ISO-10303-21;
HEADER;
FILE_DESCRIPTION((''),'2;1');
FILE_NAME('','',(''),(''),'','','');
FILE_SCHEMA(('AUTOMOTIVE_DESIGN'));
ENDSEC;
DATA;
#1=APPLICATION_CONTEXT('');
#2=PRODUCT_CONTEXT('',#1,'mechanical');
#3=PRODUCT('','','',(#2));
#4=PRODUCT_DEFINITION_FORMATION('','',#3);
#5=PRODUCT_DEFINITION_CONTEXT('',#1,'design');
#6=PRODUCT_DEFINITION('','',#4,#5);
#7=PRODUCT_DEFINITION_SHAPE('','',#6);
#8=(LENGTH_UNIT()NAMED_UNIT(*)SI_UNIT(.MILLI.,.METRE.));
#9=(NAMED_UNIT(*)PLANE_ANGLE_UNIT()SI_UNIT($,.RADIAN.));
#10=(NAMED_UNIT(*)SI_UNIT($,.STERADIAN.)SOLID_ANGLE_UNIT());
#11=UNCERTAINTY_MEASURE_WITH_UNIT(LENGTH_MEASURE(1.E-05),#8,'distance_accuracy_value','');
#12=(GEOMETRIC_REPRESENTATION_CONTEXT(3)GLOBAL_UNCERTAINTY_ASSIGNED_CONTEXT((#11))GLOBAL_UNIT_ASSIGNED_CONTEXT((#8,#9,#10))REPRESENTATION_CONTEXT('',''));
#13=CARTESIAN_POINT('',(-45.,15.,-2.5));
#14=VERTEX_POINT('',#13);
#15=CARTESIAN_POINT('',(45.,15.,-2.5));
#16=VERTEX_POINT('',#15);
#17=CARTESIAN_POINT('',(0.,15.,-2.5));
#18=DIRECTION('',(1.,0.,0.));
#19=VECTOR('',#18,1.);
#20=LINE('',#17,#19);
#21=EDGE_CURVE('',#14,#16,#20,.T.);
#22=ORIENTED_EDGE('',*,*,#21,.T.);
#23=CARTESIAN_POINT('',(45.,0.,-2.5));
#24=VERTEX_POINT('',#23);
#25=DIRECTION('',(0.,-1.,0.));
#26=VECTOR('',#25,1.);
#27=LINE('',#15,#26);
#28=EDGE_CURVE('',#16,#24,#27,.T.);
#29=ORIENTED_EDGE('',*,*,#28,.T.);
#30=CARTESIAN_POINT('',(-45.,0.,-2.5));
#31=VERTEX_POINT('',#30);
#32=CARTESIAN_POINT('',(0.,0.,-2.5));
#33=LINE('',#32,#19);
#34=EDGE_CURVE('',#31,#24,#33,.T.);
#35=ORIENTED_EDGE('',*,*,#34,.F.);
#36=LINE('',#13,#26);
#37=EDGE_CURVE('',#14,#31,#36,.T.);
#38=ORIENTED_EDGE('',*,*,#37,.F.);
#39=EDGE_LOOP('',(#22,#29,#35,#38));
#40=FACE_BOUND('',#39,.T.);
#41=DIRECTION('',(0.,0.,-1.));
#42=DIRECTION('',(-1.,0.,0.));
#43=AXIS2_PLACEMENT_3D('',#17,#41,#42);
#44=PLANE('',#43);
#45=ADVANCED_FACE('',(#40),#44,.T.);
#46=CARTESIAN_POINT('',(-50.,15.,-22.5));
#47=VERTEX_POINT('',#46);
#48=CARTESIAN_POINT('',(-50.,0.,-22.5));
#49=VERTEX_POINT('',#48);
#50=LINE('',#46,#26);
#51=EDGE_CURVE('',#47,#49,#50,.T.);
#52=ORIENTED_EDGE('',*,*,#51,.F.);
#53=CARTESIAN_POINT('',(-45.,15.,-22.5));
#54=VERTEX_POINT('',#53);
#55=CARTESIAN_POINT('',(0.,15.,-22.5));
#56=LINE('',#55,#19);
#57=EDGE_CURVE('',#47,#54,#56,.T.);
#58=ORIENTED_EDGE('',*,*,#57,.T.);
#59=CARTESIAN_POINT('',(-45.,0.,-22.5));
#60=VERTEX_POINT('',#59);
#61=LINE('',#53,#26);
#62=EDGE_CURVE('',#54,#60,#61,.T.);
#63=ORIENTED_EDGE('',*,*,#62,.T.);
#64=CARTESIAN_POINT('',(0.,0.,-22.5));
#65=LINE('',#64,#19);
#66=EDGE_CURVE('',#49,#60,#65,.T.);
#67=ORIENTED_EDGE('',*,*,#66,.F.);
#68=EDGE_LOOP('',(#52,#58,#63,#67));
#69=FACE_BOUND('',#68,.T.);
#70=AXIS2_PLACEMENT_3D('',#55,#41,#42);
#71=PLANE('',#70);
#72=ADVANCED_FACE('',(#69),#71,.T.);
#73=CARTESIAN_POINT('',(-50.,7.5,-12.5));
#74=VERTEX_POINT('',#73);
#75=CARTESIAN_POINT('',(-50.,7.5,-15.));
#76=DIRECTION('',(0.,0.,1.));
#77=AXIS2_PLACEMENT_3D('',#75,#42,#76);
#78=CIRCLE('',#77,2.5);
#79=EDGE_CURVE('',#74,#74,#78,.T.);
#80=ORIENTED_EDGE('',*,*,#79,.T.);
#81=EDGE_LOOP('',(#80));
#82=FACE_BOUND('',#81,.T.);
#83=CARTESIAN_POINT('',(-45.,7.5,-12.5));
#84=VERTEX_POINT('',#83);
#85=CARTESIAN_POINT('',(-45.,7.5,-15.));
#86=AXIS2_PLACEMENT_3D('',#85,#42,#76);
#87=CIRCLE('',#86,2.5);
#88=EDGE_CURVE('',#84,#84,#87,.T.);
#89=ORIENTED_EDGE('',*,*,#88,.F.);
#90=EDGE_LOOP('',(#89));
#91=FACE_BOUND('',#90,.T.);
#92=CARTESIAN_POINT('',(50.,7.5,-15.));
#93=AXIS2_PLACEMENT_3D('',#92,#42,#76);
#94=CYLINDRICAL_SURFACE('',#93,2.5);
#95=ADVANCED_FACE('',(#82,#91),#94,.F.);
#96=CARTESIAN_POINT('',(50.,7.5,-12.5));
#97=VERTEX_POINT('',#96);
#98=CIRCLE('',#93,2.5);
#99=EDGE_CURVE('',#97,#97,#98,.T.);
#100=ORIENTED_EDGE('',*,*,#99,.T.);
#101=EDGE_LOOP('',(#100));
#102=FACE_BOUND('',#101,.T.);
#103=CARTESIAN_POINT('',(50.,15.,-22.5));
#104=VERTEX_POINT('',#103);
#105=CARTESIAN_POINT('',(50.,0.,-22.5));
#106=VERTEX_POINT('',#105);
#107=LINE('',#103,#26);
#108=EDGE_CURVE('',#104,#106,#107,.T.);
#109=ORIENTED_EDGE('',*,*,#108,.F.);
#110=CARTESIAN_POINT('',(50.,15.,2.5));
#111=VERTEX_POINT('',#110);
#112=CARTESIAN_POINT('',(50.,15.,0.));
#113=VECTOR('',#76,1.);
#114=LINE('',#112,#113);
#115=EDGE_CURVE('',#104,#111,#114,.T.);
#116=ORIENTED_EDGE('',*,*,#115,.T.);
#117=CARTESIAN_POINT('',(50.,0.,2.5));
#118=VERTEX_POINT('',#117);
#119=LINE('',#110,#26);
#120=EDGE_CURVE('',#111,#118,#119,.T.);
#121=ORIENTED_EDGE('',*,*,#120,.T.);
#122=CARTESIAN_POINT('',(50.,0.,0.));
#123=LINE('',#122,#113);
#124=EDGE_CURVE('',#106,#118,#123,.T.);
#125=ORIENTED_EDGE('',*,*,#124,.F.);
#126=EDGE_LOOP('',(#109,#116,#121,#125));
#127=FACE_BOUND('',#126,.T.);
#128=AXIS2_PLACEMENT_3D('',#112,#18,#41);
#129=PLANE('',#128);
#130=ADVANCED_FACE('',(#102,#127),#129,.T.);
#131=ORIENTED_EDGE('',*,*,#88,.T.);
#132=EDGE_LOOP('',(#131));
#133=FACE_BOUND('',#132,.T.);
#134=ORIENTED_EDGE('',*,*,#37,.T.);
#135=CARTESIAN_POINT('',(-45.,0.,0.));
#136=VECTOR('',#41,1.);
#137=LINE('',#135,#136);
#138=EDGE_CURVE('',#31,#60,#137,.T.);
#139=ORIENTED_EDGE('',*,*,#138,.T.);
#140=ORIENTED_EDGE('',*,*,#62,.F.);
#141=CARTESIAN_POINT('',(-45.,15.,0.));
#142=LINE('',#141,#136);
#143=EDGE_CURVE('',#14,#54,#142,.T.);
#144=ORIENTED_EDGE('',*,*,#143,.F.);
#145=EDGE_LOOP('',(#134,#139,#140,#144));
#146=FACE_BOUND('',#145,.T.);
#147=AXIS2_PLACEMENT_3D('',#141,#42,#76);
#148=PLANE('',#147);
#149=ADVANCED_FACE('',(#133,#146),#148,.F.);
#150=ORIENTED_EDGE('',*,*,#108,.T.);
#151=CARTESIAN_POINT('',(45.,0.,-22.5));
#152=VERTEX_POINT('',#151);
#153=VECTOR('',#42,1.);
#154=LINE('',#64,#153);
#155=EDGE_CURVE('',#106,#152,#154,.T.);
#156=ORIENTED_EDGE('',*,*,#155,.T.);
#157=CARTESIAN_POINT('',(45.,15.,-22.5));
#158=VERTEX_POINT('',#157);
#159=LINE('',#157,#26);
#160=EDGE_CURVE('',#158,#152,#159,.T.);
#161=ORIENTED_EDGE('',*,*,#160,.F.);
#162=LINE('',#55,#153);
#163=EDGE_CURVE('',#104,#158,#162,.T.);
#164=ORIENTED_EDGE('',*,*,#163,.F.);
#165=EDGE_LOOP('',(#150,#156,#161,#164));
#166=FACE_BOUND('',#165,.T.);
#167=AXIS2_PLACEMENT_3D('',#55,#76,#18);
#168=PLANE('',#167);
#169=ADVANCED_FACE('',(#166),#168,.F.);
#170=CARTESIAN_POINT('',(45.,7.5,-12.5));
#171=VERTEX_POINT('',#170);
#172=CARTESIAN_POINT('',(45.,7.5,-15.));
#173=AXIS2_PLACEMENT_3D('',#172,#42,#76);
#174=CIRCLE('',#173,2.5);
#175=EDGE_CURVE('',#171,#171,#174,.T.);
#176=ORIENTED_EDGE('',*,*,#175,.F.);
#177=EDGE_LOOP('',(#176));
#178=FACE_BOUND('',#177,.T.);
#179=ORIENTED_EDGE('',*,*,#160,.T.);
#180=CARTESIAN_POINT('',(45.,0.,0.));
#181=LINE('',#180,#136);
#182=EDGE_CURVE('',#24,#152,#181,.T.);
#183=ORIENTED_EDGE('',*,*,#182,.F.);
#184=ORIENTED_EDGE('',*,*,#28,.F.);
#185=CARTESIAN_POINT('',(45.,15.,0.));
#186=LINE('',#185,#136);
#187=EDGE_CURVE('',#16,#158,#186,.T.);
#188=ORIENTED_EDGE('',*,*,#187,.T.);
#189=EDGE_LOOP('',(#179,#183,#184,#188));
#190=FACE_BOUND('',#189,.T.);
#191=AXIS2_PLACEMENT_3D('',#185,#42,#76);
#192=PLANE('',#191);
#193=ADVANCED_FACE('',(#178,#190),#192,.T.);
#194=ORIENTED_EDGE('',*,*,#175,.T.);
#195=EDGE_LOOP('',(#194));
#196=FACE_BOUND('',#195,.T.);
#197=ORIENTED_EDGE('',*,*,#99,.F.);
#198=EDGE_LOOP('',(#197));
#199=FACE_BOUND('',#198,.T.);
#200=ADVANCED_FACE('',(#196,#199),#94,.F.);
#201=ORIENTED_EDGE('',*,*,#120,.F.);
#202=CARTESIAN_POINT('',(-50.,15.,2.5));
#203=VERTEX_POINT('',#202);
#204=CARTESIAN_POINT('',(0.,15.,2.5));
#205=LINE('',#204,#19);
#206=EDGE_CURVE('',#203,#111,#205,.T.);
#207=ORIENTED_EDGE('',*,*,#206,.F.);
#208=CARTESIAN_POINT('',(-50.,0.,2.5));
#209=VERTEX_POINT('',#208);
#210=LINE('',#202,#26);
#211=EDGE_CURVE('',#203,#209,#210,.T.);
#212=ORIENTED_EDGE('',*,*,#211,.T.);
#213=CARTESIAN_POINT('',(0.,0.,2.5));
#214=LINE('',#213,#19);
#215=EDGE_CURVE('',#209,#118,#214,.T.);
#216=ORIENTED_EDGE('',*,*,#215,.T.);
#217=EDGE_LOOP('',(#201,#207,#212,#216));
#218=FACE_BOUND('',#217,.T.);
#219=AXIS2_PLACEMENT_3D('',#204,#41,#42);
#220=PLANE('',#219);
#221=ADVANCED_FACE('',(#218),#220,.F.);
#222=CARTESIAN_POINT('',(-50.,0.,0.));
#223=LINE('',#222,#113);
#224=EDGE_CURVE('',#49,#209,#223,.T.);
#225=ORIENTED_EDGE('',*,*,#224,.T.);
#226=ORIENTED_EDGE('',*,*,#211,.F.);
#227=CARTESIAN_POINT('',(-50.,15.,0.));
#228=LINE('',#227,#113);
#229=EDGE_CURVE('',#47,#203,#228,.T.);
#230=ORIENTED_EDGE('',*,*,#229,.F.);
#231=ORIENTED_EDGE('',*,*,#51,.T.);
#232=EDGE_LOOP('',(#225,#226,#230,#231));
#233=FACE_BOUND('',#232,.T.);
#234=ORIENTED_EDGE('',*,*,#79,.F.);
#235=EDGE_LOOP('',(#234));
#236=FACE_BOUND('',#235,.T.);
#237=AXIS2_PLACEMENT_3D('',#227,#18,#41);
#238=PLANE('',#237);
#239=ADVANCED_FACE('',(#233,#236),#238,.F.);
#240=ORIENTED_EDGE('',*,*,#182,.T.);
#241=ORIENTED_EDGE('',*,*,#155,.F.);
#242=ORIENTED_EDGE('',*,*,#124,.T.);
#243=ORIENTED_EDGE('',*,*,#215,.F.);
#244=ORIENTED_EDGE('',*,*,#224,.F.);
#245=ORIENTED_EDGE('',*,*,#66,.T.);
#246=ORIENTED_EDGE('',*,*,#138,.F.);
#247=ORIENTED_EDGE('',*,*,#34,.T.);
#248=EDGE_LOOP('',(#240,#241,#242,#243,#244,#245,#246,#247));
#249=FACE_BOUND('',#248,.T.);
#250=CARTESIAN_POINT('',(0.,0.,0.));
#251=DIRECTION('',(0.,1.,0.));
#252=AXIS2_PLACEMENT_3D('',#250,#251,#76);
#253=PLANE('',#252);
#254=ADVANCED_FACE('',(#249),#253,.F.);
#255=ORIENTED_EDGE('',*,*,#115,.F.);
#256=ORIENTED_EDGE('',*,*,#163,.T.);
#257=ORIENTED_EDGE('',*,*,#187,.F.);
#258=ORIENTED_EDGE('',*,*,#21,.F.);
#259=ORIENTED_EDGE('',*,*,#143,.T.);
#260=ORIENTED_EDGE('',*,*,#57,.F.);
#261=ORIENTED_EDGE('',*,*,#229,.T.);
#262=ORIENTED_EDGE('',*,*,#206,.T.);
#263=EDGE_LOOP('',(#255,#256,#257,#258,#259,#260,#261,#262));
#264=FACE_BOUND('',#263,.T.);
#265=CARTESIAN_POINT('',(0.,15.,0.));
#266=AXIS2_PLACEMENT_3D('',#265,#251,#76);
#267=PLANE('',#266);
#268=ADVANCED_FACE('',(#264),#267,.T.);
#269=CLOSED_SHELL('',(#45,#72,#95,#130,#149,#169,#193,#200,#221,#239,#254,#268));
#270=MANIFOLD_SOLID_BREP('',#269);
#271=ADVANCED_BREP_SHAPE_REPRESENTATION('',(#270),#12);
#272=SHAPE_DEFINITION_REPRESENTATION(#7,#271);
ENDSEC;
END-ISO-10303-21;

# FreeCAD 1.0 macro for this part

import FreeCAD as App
import Part
import Sketcher

V = App.Vector

doc = App.newDocument("Part")
body = doc.addObject("PartDesign::Body", "Body")

# Sketch on XZ plane
sketch1 = body.newObject("Sketcher::SketchObject", "Sketch")
sketch1.AttachmentSupport = (doc.getObject("XZ_Plane"), [""])
sketch1.MapMode = "FlatFace"
sketch1.addGeometry([
    Part.LineSegment(V(-50, 2, 0), V(50, 2, 0)),  # 0
    Part.LineSegment(V(50, 2, 0), V(50, -22, 0)),  # 1
    Part.LineSegment(V(50, -22, 0), V(45, -22, 0)),  # 2
    Part.LineSegment(V(45, -22, 0), V(45, -2, 0)),  # 3
    Part.LineSegment(V(45, -2, 0), V(-45, -2, 0)),  # 4
    Part.LineSegment(V(-45, -2, 0), V(-45, -22, 0)),  # 5
    Part.LineSegment(V(-45, -22, 0), V(-50, -22, 0)),  # 6
    Part.LineSegment(V(-50, -22, 0), V(-50, 2, 0)),  # 7
], False)
sketch1.addConstraint([
    Sketcher.Constraint("Coincident", 0, 2, 1, 1),
    Sketcher.Constraint("Coincident", 1, 2, 2, 1),
    Sketcher.Constraint("Coincident", 2, 2, 3, 1),
    Sketcher.Constraint("Coincident", 3, 2, 4, 1),
    Sketcher.Constraint("Coincident", 4, 2, 5, 1),
    Sketcher.Constraint("Coincident", 5, 2, 6, 1),
    Sketcher.Constraint("Coincident", 6, 2, 7, 1),
    Sketcher.Constraint("Coincident", 7, 2, 0, 1),
    Sketcher.Constraint("Horizontal", 0),
    Sketcher.Constraint("Vertical", 1),
    Sketcher.Constraint("Horizontal", 2),
    Sketcher.Constraint("Vertical", 3),
    Sketcher.Constraint("Horizontal", 4),
    Sketcher.Constraint("Vertical", 5),
    Sketcher.Constraint("Horizontal", 6),
    Sketcher.Constraint("Vertical", 7),
    Sketcher.Constraint("Symmetric", 2, 2, 5, 2, -2),
    Sketcher.Constraint("Equal", 2, 6),
    Sketcher.Constraint("DistanceX", 0, 1, 0, 2, 100.0),
    Sketcher.Constraint("DistanceX", 2, 2, 2, 1, 5.0),
    Sketcher.Constraint("DistanceY", 1, 2, 1, 1, 25.0),
    Sketcher.Constraint("DistanceY", 3, 1, 3, 2, 20.0),
    Sketcher.Constraint("DistanceY", -1, 1, 0, 2, 2.5),
])
pad1 = body.newObject("PartDesign::Pad", "Pad")
pad1.Profile = sketch1
pad1.Length = 15
pad1.Reversed = True

# Sketch on YZ plane
sketch2 = body.newObject("Sketcher::SketchObject", "Sketch001")
sketch2.AttachmentSupport = (doc.getObject("YZ_Plane"), [""])
sketch2.MapMode = "FlatFace"
sketch2.AttachmentOffset = App.Placement(V(0, 0, -50), App.Rotation())
sketch2.addGeometry(Part.Circle(V(7.5, -15, 0), V(0, 0, 1), 2.5), False)
sketch2.addConstraint([
    Sketcher.Constraint("Diameter", 0, 5.0),
    Sketcher.Constraint("DistanceY", 0, 3, -1, 1, 15.0),
    Sketcher.Constraint("DistanceX", -1, 1, 0, 3, 7.5),
])
pocket1 = body.newObject("PartDesign::Pocket", "Pocket")
pocket1.Profile = sketch2
pocket1.Type = "ThroughAll"
pocket1.Reversed = True

doc.recompute()
